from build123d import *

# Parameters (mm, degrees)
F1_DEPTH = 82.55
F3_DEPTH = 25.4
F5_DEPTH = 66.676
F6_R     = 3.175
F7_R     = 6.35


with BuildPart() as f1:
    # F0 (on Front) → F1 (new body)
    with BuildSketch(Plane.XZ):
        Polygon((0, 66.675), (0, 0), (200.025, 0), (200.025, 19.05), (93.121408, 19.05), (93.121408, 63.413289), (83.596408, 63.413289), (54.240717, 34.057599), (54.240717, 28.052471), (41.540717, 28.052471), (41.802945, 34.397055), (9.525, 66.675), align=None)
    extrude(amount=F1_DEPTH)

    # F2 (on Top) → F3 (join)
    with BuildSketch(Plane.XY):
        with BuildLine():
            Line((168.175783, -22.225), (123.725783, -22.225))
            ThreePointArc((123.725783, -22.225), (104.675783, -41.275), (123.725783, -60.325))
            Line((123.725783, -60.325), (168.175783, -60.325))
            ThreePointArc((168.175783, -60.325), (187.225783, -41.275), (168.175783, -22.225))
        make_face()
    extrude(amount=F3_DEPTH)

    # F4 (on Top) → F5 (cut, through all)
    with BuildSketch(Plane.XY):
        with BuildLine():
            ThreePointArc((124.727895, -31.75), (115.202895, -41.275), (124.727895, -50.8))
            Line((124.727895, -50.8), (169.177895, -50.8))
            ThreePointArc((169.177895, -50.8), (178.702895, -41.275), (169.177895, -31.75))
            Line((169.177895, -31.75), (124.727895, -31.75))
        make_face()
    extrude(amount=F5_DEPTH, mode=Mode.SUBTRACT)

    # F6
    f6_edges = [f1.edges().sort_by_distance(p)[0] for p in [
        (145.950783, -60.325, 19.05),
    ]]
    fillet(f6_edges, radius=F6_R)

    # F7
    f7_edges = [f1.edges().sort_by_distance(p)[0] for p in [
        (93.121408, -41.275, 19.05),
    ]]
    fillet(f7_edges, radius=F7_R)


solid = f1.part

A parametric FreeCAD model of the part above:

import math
import FreeCAD as App
import Part
import Sketcher

V = App.Vector
Q = App.Units.Quantity


def edges_at(feature, points):
    """Names of the edges that pass closest to the given points."""
    edges = feature.Shape.Edges
    near = lambda p: min(range(len(edges)), key=lambda i: edges[i].distToShape(Part.Vertex(*p))[0])
    return sorted({f"Edge{near(p) + 1}" for p in points})


def add_polygon(sketch, points):
    """Adds a closed chain of lines whose ends are joined by coincident constraints."""
    first, n = sketch.GeometryCount, len(points)
    for a, b in zip(points, points[1:] + points[:1]):
        sketch.addGeometry(Part.LineSegment(App.Vector(*a, 0), App.Vector(*b, 0)), False)
    for i in range(n):
        sketch.addConstraint(Sketcher.Constraint("Coincident", first + i, 2, first + (i + 1) % n, 1))

doc = App.newDocument("Part")
body = doc.addObject("PartDesign::Body", "Body")

# Sketch on XZ plane
sketch1 = body.newObject("Sketcher::SketchObject", "Sketch")
sketch1.AttachmentSupport = (doc.getObject("XZ_Plane"), [""])
sketch1.MapMode = "FlatFace"
add_polygon(sketch1, [(0, 67), (0, 0), (200, 0), (200, 19), (93, 19), (93, 63), (84, 63), (54, 34), (54, 28), (42, 28), (42, 34), (10, 67)])  # lines 0-11
sketch1.addConstraint(Sketcher.Constraint("Vertical", 0))
sketch1.addConstraint(Sketcher.Constraint("Horizontal", 1))
sketch1.addConstraint(Sketcher.Constraint("Vertical", 2))
sketch1.addConstraint(Sketcher.Constraint("Horizontal", 3))
sketch1.addConstraint(Sketcher.Constraint("Vertical", 4))
sketch1.addConstraint(Sketcher.Constraint("Horizontal", 5))
sketch1.addConstraint(Sketcher.Constraint("Vertical", 7))
sketch1.addConstraint(Sketcher.Constraint("Horizontal", 8))
sketch1.addConstraint(Sketcher.Constraint("Horizontal", 11))
sketch1.addConstraint(Sketcher.Constraint("Coincident", 0, 2, -1, 1))
sketch1.addConstraint(Sketcher.Constraint("Perpendicular", 6, 10))
sketch1.addConstraint(Sketcher.Constraint("Equal", 5, 11))
sketch1.addConstraint(Sketcher.Constraint("DistanceX", 8, 2, 8, 1, Q("0.5 in")))
sketch1.addConstraint(Sketcher.Constraint("Angle", 6, Q("-135.000001 deg")))
sketch1.addConstraint(Sketcher.Constraint("DistanceY", 2, 1, 2, 2, Q("0.75 in")))
sketch1.addConstraint(Sketcher.Constraint("Distance", 9, Q("0.25 in")))
sketch1.addConstraint(Sketcher.Constraint("DistanceX", 1, 1, 1, 2, Q("7.875 in")))
sketch1.addConstraint(Sketcher.Constraint("DistanceX", 5, 2, 5, 1, Q("0.375 in")))
sketch1.addConstraint(Sketcher.Constraint("DistanceY", 0, 2, 0, 1, Q("2.625 in")))
sketch1.addConstraint(Sketcher.Constraint("DistanceY", 4, 1, 4, 2, Q("44.363289 mm")))
sketch1.addConstraint(Sketcher.Constraint("DistanceY", 7, 2, 7, 1, Q("6.005128 mm")))
sketch1.addConstraint(Sketcher.Constraint("DistanceY", -1, 1, 6, 2, Q("34.057599 mm")))
sketch1.addConstraint(Sketcher.Constraint("DistanceX", 3, 2, 3, 1, Q("106.903592 mm")))
pad1 = body.newObject("PartDesign::Pad", "Pad")
pad1.Profile = sketch1
pad1.Length = Q("3.25 in")

# Sketch on XY plane
sketch2 = body.newObject("Sketcher::SketchObject", "Sketch001")
sketch2.AttachmentSupport = (doc.getObject("XY_Plane"), [""])
sketch2.MapMode = "FlatFace"
sketch2.addGeometry(Part.LineSegment(V(168, -22, 0), V(124, -22, 0)), False)
sketch2.addGeometry(Part.ArcOfCircle(Part.Circle(V(124, -41, 0), V(0, 0, 1), 19), math.radians(90), math.radians(270)), False)
sketch2.addGeometry(Part.LineSegment(V(124, -60, 0), V(168, -60, 0)), False)
sketch2.addGeometry(Part.ArcOfCircle(Part.Circle(V(168, -41, 0), V(0, 0, 1), 19), math.radians(-90), math.radians(90)), False)
sketch2.addConstraint(Sketcher.Constraint("Tangent", 0, 2, 1, 1))
sketch2.addConstraint(Sketcher.Constraint("Tangent", 1, 2, 2, 1))
sketch2.addConstraint(Sketcher.Constraint("Tangent", 2, 2, 3, 1))
sketch2.addConstraint(Sketcher.Constraint("Tangent", 3, 2, 0, 1))
sketch2.addConstraint(Sketcher.Constraint("Horizontal", 0))
sketch2.addConstraint(Sketcher.Constraint("Horizontal", 2))
sketch2.addConstraint(Sketcher.Constraint("Radius", 1, Q("0.75 in")))
sketch2.addConstraint(Sketcher.Constraint("DistanceX", 0, 2, 0, 1, Q("1.75 in")))
sketch2.addConstraint(Sketcher.Constraint("DistanceY", 1, 3, -1, 1, Q("1.625 in")))
sketch2.addConstraint(Sketcher.Constraint("DistanceX", -1, 1, 1, 3, Q("123.725783 mm")))
pad2 = body.newObject("PartDesign::Pad", "Pad001")
pad2.Profile = sketch2
pad2.Length = Q("1 in")

# Sketch on XY plane
sketch3 = body.newObject("Sketcher::SketchObject", "Sketch002")
sketch3.AttachmentSupport = (doc.getObject("XY_Plane"), [""])
sketch3.MapMode = "FlatFace"
sketch3.addGeometry(Part.ArcOfCircle(Part.Circle(V(125, -41, 0), V(0, 0, 1), 10), math.radians(90), math.radians(270)), False)
sketch3.addGeometry(Part.LineSegment(V(125, -51, 0), V(169, -51, 0)), False)
sketch3.addGeometry(Part.ArcOfCircle(Part.Circle(V(169, -41, 0), V(0, 0, 1), 10), math.radians(-90), math.radians(90)), False)
sketch3.addGeometry(Part.LineSegment(V(169, -32, 0), V(125, -32, 0)), False)
sketch3.addConstraint(Sketcher.Constraint("Tangent", 0, 2, 1, 1))
sketch3.addConstraint(Sketcher.Constraint("Tangent", 1, 2, 2, 1))
sketch3.addConstraint(Sketcher.Constraint("Tangent", 2, 2, 3, 1))
sketch3.addConstraint(Sketcher.Constraint("Tangent", 3, 2, 0, 1))
sketch3.addConstraint(Sketcher.Constraint("Horizontal", 1))
sketch3.addConstraint(Sketcher.Constraint("Horizontal", 3))
sketch3.addConstraint(Sketcher.Constraint("DistanceY", 0, 2, -1, 1, Q("2 in")))
sketch3.addConstraint(Sketcher.Constraint("Radius", 0, Q("0.375 in")))
sketch3.addConstraint(Sketcher.Constraint("DistanceX", 1, 1, 1, 2, Q("1.75 in")))
sketch3.addConstraint(Sketcher.Constraint("DistanceX", -1, 1, 0, 3, Q("124.727895 mm")))
pocket1 = body.newObject("PartDesign::Pocket", "Pocket")
pocket1.Profile = sketch3
pocket1.Type = "ThroughAll"
pocket1.Reversed = True
doc.recompute()

fillet = body.newObject("PartDesign::Fillet", "Fillet")
fillet.Base = (pocket1, edges_at(pocket1, [(145.951, -60.325, 19.05)]))
fillet.Radius = Q("0.125 in")
doc.recompute()

fillet2 = body.newObject("PartDesign::Fillet", "Fillet001")
fillet2.Base = (fillet, edges_at(fillet, [(93.121, -41.275, 19.05)]))
fillet2.Radius = Q("0.25 in")

doc.recompute()
